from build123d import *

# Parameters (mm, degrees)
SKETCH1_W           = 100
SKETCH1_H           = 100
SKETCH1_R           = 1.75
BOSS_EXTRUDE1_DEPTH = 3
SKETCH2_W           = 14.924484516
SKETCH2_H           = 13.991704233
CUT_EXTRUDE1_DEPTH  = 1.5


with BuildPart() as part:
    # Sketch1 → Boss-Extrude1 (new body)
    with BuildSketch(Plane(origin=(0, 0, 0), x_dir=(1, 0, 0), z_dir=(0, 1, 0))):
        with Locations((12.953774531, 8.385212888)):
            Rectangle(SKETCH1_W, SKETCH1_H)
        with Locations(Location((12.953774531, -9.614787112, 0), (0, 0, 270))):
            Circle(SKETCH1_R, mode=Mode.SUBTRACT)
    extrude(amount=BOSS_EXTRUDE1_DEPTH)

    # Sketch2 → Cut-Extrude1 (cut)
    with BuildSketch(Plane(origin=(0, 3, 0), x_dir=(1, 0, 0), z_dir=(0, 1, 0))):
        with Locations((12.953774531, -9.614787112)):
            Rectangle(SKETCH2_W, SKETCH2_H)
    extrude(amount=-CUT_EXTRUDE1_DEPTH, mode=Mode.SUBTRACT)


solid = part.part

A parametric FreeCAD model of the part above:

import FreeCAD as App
import Part
import Sketcher
from FreeCAD import Vector
Q = App.Units.Quantity

doc = App.newDocument("Part")
body = doc.addObject("PartDesign::Body", "Body")

# Sketch on XZ plane
sketch1 = body.newObject("Sketcher::SketchObject", "Sketch")
sketch1.AttachmentSupport = (doc.getObject("XZ_Plane"), [""])
sketch1.MapMode = "FlatFace"
sketch1.addGeometry([
    Part.LineSegment(Vector(-37, -58.4, 0), Vector(-37, 41.6, 0)),  # 0
    Part.LineSegment(Vector(-37, 41.6, 0), Vector(63, 41.6, 0)),  # 1
    Part.LineSegment(Vector(63, 41.6, 0), Vector(63, -58.4, 0)),  # 2
    Part.LineSegment(Vector(63, -58.4, 0), Vector(-37, -58.4, 0)),  # 3
    Part.Circle(Vector(13, 9.6, 0), Vector(0, 0, 1), 1.8),  # 4
], False)
sketch1.addConstraint([
    Sketcher.Constraint("Coincident", 0, 2, 1, 1),
    Sketcher.Constraint("Coincident", 1, 2, 2, 1),
    Sketcher.Constraint("Coincident", 2, 2, 3, 1),
    Sketcher.Constraint("Coincident", 3, 2, 0, 1),
    Sketcher.Constraint("Vertical", 0),
    Sketcher.Constraint("Horizontal", 1),
    Sketcher.Constraint("Vertical", 2),
    Sketcher.Constraint("Horizontal", 3),
    Sketcher.Constraint("Equal", 3, 0),
    Sketcher.Constraint("Diameter", 4, Q("3.5 mm")),
    Sketcher.Constraint("DistanceX", 1, 1, 1, 2, Q("100 mm")),
    Sketcher.Constraint("DistanceX", 0, 2, 4, 3, Q("50 mm")),
    Sketcher.Constraint("DistanceY", 4, 3, 0, 2, Q("32 mm")),
    Sketcher.Constraint("DistanceX", -1, 1, 4, 3, Q("12.953775 mm")),
    Sketcher.Constraint("DistanceY", -1, 1, 4, 3, Q("9.614787 mm")),
])
pad1 = body.newObject("PartDesign::Pad", "Pad")
pad1.Profile = sketch1
pad1.Length = 3
pad1.Reversed = True

# Sketch on XZ plane
sketch2 = body.newObject("Sketcher::SketchObject", "Sketch001")
sketch2.AttachmentSupport = (doc.getObject("XZ_Plane"), [""])
sketch2.MapMode = "FlatFace"
sketch2.AttachmentOffset = App.Placement(Vector(0, 0, -3), App.Rotation())
sketch2.addGeometry([
    Part.LineSegment(Vector(5, 3, 0), Vector(5, 17, 0)),
    Part.LineSegment(Vector(5, 17, 0), Vector(20, 17, 0)),
    Part.LineSegment(Vector(20, 17, 0), Vector(20, 3, 0)),
    Part.LineSegment(Vector(20, 3, 0), Vector(5, 3, 0)),
], False)
sketch2.addConstraint([
    Sketcher.Constraint("Coincident", 0, 2, 1, 1),
    Sketcher.Constraint("Coincident", 1, 2, 2, 1),
    Sketcher.Constraint("Coincident", 2, 2, 3, 1),
    Sketcher.Constraint("Coincident", 3, 2, 0, 1),
    Sketcher.Constraint("Vertical", 0),
    Sketcher.Constraint("Horizontal", 1),
    Sketcher.Constraint("Vertical", 2),
    Sketcher.Constraint("Horizontal", 3),
    Sketcher.Constraint("DistanceX", 1, 1, 1, 2, Q("14.924485 mm")),
    Sketcher.Constraint("DistanceY", 0, 1, 0, 2, Q("13.991704 mm")),
    Sketcher.Constraint("DistanceY", -1, 1, 0, 2, Q("16.610639 mm")),
    Sketcher.Constraint("DistanceX", -1, 1, 0, 2, Q("5.491532 mm")),
])
pocket1 = body.newObject("PartDesign::Pocket", "Pocket")
pocket1.Profile = sketch2
pocket1.Length = 1.5
pocket1.Reversed = True

doc.recompute()
